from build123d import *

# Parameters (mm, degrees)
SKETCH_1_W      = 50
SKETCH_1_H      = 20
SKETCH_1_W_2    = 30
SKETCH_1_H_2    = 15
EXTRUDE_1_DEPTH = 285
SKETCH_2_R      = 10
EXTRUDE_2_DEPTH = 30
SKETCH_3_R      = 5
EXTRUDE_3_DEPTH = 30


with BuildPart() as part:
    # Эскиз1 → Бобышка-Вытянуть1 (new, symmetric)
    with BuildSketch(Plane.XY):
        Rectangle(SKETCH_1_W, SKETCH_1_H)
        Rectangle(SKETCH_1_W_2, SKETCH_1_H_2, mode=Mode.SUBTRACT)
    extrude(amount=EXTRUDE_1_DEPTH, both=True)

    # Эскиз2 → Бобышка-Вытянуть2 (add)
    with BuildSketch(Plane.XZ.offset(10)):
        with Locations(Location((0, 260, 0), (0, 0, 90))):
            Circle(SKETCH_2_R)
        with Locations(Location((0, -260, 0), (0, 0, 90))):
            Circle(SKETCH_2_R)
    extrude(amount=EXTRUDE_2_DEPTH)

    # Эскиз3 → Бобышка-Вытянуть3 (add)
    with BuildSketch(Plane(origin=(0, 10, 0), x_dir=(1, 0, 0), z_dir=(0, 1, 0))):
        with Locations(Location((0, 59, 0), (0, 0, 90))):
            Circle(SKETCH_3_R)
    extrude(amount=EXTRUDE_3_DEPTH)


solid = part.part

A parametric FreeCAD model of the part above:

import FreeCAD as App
import Part
import Sketcher
Q = App.Units.Quantity

doc = App.newDocument("Part")
body = doc.addObject("PartDesign::Body", "Body")

# Sketch on XY plane
sketch1 = body.newObject("Sketcher::SketchObject", "Sketch")
sketch1.AttachmentSupport = (doc.getObject("XY_Plane"), [""])
sketch1.MapMode = "FlatFace"
sketch1.addGeometry(Part.LineSegment(App.Vector(-25, 10, 0), App.Vector(-25, -10, 0)), False)
sketch1.addGeometry(Part.LineSegment(App.Vector(-25, -10, 0), App.Vector(25, -10, 0)), False)
sketch1.addGeometry(Part.LineSegment(App.Vector(25, -10, 0), App.Vector(25, 10, 0)), False)
sketch1.addGeometry(Part.LineSegment(App.Vector(25, 10, 0), App.Vector(-25, 10, 0)), False)
sketch1.addGeometry(Part.LineSegment(App.Vector(15, -8, 0), App.Vector(-15, -8, 0)), False)
sketch1.addGeometry(Part.LineSegment(App.Vector(-15, -8, 0), App.Vector(-15, 8, 0)), False)
sketch1.addGeometry(Part.LineSegment(App.Vector(-15, 8, 0), App.Vector(15, 8, 0)), False)
sketch1.addGeometry(Part.LineSegment(App.Vector(15, 8, 0), App.Vector(15, -8, 0)), False)
sketch1.addConstraint(Sketcher.Constraint("Coincident", 0, 2, 1, 1))
sketch1.addConstraint(Sketcher.Constraint("Coincident", 1, 2, 2, 1))
sketch1.addConstraint(Sketcher.Constraint("Coincident", 2, 2, 3, 1))
sketch1.addConstraint(Sketcher.Constraint("Coincident", 3, 2, 0, 1))
sketch1.addConstraint(Sketcher.Constraint("Coincident", 4, 2, 5, 1))
sketch1.addConstraint(Sketcher.Constraint("Coincident", 5, 2, 6, 1))
sketch1.addConstraint(Sketcher.Constraint("Coincident", 6, 2, 7, 1))
sketch1.addConstraint(Sketcher.Constraint("Coincident", 7, 2, 4, 1))
sketch1.addConstraint(Sketcher.Constraint("Vertical", 0))
sketch1.addConstraint(Sketcher.Constraint("Horizontal", 1))
sketch1.addConstraint(Sketcher.Constraint("Vertical", 2))
sketch1.addConstraint(Sketcher.Constraint("Horizontal", 3))
sketch1.addConstraint(Sketcher.Constraint("Horizontal", 4))
sketch1.addConstraint(Sketcher.Constraint("Vertical", 5))
sketch1.addConstraint(Sketcher.Constraint("Horizontal", 6))
sketch1.addConstraint(Sketcher.Constraint("Vertical", 7))
sketch1.addConstraint(Sketcher.Constraint("Symmetric", 0, 2, 2, 2, -1, 1))
sketch1.addConstraint(Sketcher.Constraint("Symmetric", 4, 2, 6, 2, -1, 1))
sketch1.addConstraint(Sketcher.Constraint("DistanceX", 1, 1, 1, 2, Q("50 mm")))
sketch1.addConstraint(Sketcher.Constraint("DistanceX", 4, 2, 4, 1, Q("30 mm")))
sketch1.addConstraint(Sketcher.Constraint("DistanceY", 0, 2, 0, 1, Q("20 mm")))
sketch1.addConstraint(Sketcher.Constraint("DistanceY", 5, 1, 5, 2, Q("15 mm")))
pad1 = body.newObject("PartDesign::Pad", "Pad")
pad1.Profile = sketch1
pad1.Length = 570
pad1.Midplane = True

# Sketch on XZ plane
sketch2 = body.newObject("Sketcher::SketchObject", "Sketch001")
sketch2.AttachmentSupport = (doc.getObject("XZ_Plane"), [""])
sketch2.MapMode = "FlatFace"
sketch2.AttachmentOffset = App.Placement(App.Vector(0, 0, 10), App.Rotation())
sketch2.addGeometry(Part.Circle(App.Vector(0, 260, 0), App.Vector(0, 0, 1), 10), False)
sketch2.addGeometry(Part.Circle(App.Vector(0, -260, 0), App.Vector(0, 0, 1), 10), False)
sketch2.addConstraint(Sketcher.Constraint("Equal", 0, 1))
sketch2.addConstraint(Sketcher.Constraint("Symmetric", 0, 3, 1, 3, -1, 1))
sketch2.addConstraint(Sketcher.Constraint("PointOnObject", 0, 3, -2))
sketch2.addConstraint(Sketcher.Constraint("Diameter", 0, Q("20 mm")))
sketch2.addConstraint(Sketcher.Constraint("DistanceY", -1, 1, 0, 3, Q("260 mm")))
pad2 = body.newObject("PartDesign::Pad", "Pad001")
pad2.Profile = sketch2
pad2.Length = 30

# Sketch on XZ plane
sketch3 = body.newObject("Sketcher::SketchObject", "Sketch002")
sketch3.AttachmentSupport = (doc.getObject("XZ_Plane"), [""])
sketch3.MapMode = "FlatFace"
sketch3.AttachmentOffset = App.Placement(App.Vector(0, 0, -10), App.Rotation())
sketch3.addGeometry(Part.Circle(App.Vector(0, -59, 0), App.Vector(0, 0, 1), 5), False)
sketch3.addConstraint(Sketcher.Constraint("PointOnObject", 0, 3, -2))
sketch3.addConstraint(Sketcher.Constraint("Diameter", 0, Q("10 mm")))
sketch3.addConstraint(Sketcher.Constraint("DistanceY", 0, 3, -1, 1, Q("59 mm")))
pad3 = body.newObject("PartDesign::Pad", "Pad002")
pad3.Profile = sketch3
pad3.Length = 30
pad3.Reversed = True

doc.recompute()
